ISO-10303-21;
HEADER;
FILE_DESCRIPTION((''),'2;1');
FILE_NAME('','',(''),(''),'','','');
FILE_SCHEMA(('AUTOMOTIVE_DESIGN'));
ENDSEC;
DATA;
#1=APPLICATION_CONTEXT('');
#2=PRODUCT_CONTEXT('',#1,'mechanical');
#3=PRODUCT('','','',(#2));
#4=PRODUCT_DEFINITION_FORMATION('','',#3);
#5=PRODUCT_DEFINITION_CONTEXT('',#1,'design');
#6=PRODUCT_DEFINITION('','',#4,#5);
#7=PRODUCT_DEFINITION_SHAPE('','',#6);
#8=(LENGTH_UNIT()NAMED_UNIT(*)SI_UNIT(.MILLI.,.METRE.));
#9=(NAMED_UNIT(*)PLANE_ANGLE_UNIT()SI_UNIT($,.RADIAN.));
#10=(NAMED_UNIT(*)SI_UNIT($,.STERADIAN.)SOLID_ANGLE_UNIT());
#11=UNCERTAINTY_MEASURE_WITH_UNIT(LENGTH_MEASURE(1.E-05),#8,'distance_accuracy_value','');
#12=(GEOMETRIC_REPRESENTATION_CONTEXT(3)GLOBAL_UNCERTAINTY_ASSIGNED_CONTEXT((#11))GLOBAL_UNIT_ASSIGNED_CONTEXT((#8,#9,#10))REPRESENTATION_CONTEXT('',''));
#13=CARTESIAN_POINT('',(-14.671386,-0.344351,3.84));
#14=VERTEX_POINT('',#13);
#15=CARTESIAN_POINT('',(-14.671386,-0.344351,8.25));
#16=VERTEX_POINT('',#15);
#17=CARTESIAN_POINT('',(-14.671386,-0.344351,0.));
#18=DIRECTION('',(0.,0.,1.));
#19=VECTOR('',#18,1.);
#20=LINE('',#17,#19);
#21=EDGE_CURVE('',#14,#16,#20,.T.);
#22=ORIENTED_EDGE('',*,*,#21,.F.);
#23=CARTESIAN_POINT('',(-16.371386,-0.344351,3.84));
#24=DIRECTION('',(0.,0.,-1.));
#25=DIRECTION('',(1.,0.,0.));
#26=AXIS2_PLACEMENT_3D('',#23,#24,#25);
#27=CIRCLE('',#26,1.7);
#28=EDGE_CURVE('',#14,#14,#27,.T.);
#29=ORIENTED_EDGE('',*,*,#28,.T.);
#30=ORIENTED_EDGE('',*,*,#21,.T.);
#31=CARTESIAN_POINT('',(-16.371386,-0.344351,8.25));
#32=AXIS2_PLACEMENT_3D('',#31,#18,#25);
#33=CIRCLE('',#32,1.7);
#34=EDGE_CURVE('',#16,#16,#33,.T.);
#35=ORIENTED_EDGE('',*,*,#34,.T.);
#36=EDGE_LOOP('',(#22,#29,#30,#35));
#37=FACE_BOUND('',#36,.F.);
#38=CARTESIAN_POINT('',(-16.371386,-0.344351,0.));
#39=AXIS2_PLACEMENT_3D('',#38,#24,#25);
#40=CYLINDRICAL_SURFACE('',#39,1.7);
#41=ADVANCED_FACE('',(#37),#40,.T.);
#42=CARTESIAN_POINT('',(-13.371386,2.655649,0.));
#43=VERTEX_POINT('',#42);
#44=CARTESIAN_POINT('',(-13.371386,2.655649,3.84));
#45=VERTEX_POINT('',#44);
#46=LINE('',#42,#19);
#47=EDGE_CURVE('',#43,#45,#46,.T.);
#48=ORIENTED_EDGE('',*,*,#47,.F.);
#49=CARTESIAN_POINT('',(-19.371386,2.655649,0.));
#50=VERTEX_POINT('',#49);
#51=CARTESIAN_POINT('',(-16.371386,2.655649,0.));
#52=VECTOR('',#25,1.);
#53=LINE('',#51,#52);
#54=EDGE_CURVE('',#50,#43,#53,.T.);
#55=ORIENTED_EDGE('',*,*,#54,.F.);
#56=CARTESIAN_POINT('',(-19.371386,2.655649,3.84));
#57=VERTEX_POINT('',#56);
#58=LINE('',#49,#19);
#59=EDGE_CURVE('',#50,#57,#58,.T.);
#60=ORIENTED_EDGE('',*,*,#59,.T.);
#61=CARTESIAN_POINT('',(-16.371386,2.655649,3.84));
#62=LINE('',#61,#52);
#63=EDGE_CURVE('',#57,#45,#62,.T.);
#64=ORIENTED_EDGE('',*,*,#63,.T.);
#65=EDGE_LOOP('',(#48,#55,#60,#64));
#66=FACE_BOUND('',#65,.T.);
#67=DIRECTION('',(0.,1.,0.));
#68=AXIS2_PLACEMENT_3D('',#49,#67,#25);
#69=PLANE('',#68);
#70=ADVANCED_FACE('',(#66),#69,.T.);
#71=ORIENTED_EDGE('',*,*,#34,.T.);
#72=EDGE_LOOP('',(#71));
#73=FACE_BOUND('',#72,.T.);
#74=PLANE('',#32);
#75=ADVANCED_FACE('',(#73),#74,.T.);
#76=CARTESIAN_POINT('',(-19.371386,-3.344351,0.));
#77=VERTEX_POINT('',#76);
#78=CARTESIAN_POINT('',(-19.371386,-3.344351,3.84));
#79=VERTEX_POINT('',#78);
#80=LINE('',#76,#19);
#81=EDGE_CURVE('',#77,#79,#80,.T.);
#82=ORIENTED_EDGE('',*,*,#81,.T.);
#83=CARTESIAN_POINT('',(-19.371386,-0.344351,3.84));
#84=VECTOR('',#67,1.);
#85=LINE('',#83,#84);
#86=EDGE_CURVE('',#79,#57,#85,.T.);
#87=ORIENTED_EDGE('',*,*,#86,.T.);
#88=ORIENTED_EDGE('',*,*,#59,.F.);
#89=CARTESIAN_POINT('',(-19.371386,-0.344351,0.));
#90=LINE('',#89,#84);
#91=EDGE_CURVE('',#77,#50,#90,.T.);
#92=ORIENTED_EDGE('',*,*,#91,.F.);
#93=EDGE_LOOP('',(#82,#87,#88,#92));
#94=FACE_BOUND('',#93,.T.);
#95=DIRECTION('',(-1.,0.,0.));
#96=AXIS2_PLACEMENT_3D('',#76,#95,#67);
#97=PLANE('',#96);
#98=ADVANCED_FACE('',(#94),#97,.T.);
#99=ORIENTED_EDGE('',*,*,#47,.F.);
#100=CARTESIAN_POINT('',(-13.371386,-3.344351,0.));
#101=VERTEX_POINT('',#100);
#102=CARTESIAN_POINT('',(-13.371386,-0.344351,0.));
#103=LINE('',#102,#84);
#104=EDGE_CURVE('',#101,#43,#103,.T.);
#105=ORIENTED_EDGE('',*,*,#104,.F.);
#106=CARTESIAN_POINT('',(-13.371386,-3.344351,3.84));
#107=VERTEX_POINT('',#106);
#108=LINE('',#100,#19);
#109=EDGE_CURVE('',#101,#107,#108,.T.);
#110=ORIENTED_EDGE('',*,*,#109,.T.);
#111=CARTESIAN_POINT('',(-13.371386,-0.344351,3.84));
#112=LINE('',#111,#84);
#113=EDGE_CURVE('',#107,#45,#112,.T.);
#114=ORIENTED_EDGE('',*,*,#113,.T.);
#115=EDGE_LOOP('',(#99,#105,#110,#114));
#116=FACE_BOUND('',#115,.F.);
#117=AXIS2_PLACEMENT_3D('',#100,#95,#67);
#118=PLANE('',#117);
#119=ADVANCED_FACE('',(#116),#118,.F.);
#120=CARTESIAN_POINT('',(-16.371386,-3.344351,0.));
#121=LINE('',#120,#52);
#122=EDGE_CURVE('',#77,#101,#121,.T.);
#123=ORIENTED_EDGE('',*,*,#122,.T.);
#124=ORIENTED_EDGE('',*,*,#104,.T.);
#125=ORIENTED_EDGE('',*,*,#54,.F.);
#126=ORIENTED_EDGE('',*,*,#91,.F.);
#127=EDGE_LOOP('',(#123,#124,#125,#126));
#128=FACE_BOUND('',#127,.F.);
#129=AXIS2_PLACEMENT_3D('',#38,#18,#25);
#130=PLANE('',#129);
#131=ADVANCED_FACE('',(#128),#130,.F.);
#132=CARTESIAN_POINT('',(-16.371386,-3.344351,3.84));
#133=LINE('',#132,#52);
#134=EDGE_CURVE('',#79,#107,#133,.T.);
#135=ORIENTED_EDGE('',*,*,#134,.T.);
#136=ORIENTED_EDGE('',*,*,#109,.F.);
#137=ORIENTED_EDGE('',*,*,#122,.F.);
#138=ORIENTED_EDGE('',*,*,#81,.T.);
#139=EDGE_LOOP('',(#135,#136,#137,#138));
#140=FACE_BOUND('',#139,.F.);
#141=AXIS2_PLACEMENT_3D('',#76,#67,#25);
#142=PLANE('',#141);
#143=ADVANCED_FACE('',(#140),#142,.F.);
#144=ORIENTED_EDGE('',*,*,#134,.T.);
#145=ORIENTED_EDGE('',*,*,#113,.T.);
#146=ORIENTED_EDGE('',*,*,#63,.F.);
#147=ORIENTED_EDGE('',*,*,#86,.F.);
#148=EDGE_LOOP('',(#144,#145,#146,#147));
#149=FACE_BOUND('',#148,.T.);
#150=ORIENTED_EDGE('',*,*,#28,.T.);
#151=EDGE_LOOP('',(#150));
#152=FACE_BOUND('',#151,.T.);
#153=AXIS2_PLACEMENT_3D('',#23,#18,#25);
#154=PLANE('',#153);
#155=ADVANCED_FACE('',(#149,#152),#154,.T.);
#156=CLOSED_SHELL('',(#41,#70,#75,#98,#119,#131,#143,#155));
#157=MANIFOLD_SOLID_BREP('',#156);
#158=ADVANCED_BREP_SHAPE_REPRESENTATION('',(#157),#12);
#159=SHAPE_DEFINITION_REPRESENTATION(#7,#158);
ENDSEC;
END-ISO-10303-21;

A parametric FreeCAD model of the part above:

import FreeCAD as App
import Part
import Sketcher
from FreeCAD import Vector

doc = App.newDocument("Part")
params = doc.addObject("Spreadsheet::Sheet", "Params")
for row, (alias, value) in enumerate([
    ("sketch1_width", "6 mm"),
    ("pad1_length", "3.84 mm"),
    ("sketch2_diameter", "3.4 mm"),
    ("pad2_length", "8.25 mm"),
], start=1):
    params.set(f"A{row}", alias)
    params.set(f"B{row}", "=" + value)
    params.setAlias(f"B{row}", alias)

body = doc.addObject("PartDesign::Body", "Body")

# Sketch on XY plane
sketch1 = doc.addObject("Sketcher::SketchObject", "Sketch")
body.addObject(sketch1)
sketch1.AttachmentSupport = (doc.XY_Plane, [""])
sketch1.MapMode = "FlatFace"
sketch1.addGeometry([
    Part.LineSegment(Vector(-19, 3, 0), Vector(-19, -3, 0)),
    Part.LineSegment(Vector(-19, -3, 0), Vector(-13, -3, 0)),
    Part.LineSegment(Vector(-13, -3, 0), Vector(-13, 3, 0)),
    Part.LineSegment(Vector(-13, 3, 0), Vector(-19, 3, 0)),
], False)
sketch1.addConstraint([
    Sketcher.Constraint("Coincident", 0, 2, 1, 1),
    Sketcher.Constraint("Coincident", 1, 2, 2, 1),
    Sketcher.Constraint("Coincident", 2, 2, 3, 1),
    Sketcher.Constraint("Coincident", 3, 2, 0, 1),
    Sketcher.Constraint("Vertical", 0),
    Sketcher.Constraint("Horizontal", 1),
    Sketcher.Constraint("Vertical", 2),
    Sketcher.Constraint("Horizontal", 3),
    Sketcher.Constraint("Equal", 3, 0),
    Sketcher.Constraint("DistanceX", 1, 1, 1, 2, 6.0),
    Sketcher.Constraint("DistanceY", 0, 2, -1, 1, 3.344351),
    Sketcher.Constraint("DistanceX", 0, 2, -1, 1, 19.371386),
])
sketch1.setExpression("Constraints[9]", "Params.sketch1_width")
pad1 = doc.addObject("PartDesign::Pad", "Pad")
body.addObject(pad1)
pad1.Profile = sketch1
pad1.setExpression("Length", "Params.pad1_length")

# Sketch on XY plane
sketch2 = doc.addObject("Sketcher::SketchObject", "Sketch001")
body.addObject(sketch2)
sketch2.AttachmentSupport = (doc.XY_Plane, [""])
sketch2.MapMode = "FlatFace"
sketch2.addGeometry(Part.Circle(Vector(-16.4, -0.3, 0), Vector(0, 0, 1), 1.7), False)
sketch2.addConstraint([
    Sketcher.Constraint("Diameter", 0, 3.4),
    Sketcher.Constraint("DistanceY", 0, 3, -1, 1, 0.344351),
    Sketcher.Constraint("DistanceX", 0, 3, -1, 1, 16.371386),
])
sketch2.setExpression("Constraints[0]", "Params.sketch2_diameter")
pad2 = doc.addObject("PartDesign::Pad", "Pad001")
body.addObject(pad2)
pad2.Profile = sketch2
pad2.setExpression("Length", "Params.pad2_length")

doc.recompute()
